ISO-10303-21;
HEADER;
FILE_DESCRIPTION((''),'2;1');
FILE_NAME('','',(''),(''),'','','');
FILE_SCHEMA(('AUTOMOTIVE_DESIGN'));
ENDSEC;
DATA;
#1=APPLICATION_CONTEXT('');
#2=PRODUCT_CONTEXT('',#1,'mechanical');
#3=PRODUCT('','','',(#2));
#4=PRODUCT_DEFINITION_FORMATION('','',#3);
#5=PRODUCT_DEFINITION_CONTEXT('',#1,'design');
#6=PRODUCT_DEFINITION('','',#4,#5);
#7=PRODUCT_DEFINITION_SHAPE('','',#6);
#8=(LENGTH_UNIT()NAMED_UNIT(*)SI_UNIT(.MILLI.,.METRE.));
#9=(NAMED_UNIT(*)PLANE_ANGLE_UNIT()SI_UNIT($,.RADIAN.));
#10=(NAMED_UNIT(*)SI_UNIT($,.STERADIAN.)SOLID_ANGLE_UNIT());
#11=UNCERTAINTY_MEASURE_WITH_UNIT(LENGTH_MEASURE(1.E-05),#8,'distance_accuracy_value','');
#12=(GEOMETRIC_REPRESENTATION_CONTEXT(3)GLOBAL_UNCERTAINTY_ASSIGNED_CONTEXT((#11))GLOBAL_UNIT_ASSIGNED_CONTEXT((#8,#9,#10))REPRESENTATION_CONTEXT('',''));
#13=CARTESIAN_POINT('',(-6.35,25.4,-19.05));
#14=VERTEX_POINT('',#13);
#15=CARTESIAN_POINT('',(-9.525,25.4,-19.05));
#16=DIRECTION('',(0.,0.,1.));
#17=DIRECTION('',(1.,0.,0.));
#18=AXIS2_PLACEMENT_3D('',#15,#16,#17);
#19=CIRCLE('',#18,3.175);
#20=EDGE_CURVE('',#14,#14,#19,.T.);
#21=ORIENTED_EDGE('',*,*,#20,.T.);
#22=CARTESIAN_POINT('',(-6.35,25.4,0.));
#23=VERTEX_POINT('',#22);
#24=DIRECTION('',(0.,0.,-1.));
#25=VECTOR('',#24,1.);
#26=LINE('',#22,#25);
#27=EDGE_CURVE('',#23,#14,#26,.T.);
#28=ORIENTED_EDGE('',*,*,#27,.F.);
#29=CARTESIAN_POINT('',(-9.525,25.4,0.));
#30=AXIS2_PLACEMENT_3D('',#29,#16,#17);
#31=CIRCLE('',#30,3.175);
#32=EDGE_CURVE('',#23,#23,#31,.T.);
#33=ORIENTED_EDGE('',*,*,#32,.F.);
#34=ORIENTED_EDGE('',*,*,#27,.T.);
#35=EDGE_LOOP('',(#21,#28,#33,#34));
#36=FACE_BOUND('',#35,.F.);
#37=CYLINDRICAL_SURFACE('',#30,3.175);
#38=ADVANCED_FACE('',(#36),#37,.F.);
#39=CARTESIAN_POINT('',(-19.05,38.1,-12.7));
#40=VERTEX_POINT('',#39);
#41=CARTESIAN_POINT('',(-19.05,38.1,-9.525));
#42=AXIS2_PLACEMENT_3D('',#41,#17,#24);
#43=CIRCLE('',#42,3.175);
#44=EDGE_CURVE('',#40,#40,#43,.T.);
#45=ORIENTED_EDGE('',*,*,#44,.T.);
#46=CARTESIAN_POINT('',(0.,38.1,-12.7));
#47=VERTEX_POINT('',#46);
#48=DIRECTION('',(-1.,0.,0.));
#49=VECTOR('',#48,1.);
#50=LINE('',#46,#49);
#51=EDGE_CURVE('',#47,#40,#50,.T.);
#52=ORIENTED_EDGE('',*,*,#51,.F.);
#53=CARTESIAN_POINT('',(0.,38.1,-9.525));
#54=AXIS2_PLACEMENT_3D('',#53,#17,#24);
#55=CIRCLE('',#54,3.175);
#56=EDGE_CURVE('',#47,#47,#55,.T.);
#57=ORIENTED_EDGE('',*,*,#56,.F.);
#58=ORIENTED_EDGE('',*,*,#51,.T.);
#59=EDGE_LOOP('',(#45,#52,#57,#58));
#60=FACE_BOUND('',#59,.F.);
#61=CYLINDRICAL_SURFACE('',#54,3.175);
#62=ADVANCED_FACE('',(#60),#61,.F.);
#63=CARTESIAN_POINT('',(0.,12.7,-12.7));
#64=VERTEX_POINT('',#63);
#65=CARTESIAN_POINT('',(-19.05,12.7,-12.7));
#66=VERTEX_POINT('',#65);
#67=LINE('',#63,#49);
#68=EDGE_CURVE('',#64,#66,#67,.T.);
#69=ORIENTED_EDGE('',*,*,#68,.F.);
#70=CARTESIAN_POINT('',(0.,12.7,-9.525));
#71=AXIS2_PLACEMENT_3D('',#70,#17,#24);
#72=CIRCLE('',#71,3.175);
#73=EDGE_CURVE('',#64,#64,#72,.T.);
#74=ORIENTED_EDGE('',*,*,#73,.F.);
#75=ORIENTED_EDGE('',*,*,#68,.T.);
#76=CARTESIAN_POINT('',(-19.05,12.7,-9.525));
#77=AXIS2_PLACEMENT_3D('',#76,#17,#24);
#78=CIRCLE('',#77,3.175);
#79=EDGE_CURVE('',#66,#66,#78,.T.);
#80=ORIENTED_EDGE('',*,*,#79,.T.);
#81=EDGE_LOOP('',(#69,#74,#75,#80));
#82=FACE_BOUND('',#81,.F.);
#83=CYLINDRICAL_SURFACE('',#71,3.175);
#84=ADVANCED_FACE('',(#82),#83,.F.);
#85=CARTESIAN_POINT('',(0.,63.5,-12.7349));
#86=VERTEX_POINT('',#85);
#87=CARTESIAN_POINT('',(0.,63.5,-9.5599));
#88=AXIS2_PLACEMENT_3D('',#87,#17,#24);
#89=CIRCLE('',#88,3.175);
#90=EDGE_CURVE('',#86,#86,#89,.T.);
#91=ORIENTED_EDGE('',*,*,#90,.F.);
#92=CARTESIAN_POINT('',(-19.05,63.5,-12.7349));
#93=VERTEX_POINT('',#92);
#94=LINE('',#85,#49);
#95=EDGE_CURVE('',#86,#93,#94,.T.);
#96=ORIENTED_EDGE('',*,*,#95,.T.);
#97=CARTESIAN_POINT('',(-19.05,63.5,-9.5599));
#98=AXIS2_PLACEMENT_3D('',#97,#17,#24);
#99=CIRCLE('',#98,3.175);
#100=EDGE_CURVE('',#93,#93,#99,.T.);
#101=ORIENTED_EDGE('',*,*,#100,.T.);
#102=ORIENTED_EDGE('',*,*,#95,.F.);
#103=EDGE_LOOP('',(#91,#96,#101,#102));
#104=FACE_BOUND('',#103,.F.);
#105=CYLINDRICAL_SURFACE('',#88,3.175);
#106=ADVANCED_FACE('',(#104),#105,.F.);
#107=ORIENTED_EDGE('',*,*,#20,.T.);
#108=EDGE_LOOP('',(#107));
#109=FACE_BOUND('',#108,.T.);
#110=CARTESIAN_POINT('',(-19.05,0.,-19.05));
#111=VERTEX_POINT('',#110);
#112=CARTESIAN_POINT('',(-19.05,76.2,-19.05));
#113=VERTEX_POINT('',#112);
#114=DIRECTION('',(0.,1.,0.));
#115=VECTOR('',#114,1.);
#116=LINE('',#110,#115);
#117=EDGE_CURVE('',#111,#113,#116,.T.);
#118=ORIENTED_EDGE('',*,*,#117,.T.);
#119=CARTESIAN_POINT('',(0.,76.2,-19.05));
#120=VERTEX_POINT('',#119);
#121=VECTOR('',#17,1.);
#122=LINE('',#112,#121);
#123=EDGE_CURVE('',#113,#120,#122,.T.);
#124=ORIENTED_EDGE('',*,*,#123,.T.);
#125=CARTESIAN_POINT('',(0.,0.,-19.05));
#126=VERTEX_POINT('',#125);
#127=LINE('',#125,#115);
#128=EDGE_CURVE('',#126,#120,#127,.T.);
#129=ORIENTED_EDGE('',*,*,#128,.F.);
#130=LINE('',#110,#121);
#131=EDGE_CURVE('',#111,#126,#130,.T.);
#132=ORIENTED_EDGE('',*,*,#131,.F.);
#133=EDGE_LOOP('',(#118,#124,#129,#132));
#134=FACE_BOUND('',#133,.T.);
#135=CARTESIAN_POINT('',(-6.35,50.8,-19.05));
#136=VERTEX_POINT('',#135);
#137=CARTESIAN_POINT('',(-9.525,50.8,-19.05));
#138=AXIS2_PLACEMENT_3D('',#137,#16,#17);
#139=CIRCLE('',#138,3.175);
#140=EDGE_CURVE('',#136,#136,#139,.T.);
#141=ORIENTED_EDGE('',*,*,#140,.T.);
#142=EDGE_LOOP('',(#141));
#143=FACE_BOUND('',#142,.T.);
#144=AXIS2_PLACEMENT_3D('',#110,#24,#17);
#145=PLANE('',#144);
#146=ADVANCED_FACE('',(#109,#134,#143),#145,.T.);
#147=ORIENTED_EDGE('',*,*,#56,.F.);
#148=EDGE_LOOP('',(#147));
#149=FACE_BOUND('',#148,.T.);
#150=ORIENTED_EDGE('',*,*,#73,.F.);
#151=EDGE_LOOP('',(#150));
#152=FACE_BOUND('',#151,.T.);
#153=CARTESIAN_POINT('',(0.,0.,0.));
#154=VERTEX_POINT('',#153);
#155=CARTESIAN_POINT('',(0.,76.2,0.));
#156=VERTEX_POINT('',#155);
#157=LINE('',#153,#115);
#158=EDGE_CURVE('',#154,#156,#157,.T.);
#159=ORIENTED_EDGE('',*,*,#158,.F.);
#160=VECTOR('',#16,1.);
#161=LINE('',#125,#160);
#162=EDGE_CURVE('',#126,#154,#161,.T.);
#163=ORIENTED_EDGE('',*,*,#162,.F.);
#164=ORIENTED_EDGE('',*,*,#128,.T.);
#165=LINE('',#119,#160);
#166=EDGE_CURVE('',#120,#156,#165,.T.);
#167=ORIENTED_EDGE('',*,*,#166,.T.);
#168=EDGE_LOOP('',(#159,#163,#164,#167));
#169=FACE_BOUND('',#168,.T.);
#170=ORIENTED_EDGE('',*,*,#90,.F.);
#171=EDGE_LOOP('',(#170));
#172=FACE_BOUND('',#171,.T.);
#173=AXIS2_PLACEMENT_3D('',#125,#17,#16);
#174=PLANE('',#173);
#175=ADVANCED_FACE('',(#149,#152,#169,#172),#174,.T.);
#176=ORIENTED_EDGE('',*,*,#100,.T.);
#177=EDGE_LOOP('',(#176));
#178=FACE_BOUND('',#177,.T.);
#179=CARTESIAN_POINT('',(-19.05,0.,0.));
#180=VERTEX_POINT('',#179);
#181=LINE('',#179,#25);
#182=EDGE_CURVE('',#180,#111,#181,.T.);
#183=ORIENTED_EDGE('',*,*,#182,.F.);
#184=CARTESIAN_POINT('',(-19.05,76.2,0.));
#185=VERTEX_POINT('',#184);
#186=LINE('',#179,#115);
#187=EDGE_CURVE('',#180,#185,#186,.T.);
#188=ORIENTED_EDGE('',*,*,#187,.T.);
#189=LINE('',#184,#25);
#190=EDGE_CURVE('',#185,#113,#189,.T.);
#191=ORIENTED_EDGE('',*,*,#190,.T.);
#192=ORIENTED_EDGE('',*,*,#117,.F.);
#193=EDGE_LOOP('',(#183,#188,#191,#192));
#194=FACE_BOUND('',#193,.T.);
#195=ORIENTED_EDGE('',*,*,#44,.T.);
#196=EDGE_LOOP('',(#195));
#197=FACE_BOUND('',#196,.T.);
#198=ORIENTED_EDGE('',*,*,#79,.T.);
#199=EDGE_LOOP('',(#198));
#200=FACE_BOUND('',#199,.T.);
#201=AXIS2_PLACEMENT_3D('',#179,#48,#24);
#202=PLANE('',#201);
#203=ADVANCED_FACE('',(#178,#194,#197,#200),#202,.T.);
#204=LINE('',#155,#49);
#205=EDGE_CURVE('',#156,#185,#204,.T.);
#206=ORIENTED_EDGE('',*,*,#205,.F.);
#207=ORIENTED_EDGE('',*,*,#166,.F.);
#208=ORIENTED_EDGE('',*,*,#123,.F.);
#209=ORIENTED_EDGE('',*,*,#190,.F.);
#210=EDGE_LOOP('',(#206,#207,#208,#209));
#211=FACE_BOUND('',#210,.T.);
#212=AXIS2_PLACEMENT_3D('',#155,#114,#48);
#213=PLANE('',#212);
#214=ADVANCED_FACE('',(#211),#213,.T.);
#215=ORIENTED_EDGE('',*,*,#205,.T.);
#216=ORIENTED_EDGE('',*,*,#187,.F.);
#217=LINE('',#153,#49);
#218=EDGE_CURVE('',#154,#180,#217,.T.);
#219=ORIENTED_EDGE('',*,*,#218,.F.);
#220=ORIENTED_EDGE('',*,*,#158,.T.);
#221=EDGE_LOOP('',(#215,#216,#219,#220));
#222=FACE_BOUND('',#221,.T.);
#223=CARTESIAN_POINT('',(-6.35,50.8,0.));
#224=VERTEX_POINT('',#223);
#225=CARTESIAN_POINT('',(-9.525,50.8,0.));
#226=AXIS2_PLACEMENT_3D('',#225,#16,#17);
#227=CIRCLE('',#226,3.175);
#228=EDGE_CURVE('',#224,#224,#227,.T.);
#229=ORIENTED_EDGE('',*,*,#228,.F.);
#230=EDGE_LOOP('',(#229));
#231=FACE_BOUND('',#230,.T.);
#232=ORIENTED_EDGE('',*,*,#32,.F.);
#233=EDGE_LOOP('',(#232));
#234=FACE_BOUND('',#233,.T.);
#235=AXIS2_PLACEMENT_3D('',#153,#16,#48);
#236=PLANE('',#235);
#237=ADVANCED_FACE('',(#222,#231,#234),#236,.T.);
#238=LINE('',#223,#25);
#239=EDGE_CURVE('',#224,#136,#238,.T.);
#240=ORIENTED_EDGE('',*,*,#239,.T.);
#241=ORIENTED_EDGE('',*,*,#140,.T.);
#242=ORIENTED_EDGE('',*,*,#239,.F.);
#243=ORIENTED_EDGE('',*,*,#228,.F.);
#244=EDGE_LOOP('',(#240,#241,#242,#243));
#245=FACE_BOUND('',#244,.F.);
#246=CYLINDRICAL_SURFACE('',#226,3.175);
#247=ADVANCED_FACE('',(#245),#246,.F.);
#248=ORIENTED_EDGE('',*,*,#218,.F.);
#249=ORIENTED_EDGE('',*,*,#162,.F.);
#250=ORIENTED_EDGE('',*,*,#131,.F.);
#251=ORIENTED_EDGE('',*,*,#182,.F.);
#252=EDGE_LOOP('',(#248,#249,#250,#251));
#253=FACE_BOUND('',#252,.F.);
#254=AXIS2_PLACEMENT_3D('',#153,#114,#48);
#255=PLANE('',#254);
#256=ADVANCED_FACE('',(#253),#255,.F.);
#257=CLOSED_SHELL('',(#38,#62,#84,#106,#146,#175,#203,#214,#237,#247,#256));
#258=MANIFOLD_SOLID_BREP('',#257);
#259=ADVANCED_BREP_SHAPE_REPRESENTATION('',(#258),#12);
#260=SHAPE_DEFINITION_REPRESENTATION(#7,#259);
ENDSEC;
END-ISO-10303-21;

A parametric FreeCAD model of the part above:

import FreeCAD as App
import Part
import Sketcher
Q = App.Units.Quantity


def add_polygon(sketch, points):
    """Adds a closed chain of lines whose ends are joined by coincident constraints."""
    first, n = sketch.GeometryCount, len(points)
    for a, b in zip(points, points[1:] + points[:1]):
        sketch.addGeometry(Part.LineSegment(App.Vector(*a, 0), App.Vector(*b, 0)), False)
    for i in range(n):
        sketch.addConstraint(Sketcher.Constraint("Coincident", first + i, 2, first + (i + 1) % n, 1))

doc = App.newDocument("Part")
body = doc.addObject("PartDesign::Body", "Body")

# Sketch on XZ plane
sketch1 = doc.addObject("Sketcher::SketchObject", "Sketch")
body.addObject(sketch1)
sketch1.AttachmentSupport = (doc.XZ_Plane, [""])
sketch1.MapMode = "FlatFace"
add_polygon(sketch1, [(-19, 0), (0, 0), (0, -19), (-19, -19)])  # lines 0-3
sketch1.addConstraint([
    Sketcher.Constraint("Horizontal", 0),
    Sketcher.Constraint("Vertical", 1),
    Sketcher.Constraint("Horizontal", 2),
    Sketcher.Constraint("Vertical", 3),
    Sketcher.Constraint("Coincident", 0, 2, -1, 1),
    Sketcher.Constraint("Equal", 2, 1),
    Sketcher.Constraint("DistanceX", 0, 1, 0, 2, Q("0.75 in")),
])
pad1 = doc.addObject("PartDesign::Pad", "Pad")
body.addObject(pad1)
pad1.Profile = sketch1
pad1.Length = Q("3 in")
pad1.Reversed = True

# Sketch on XY plane
sketch2 = doc.addObject("Sketcher::SketchObject", "Sketch001")
body.addObject(sketch2)
sketch2.AttachmentSupport = (doc.XY_Plane, [""])
sketch2.MapMode = "FlatFace"
sketch2.addGeometry([
    Part.Circle(App.Vector(-9.5, 50.8, 0), App.Vector(0, 0, 1), 3.2),
    Part.Circle(App.Vector(-9.5, 25.4, 0), App.Vector(0, 0, 1), 3.2),
], False)
sketch2.addConstraint([
    Sketcher.Constraint("Equal", 0, 1),
    Sketcher.Constraint("Vertical", 0, 3, 1, 3),
    Sketcher.Constraint("Diameter", 0, Q("0.25 in")),
    Sketcher.Constraint("DistanceY", -1, 1, 1, 3, Q("1 in")),
    Sketcher.Constraint("DistanceY", 1, 3, 0, 3, Q("1 in")),
    Sketcher.Constraint("DistanceX", 0, 3, -1, 1, Q("0.375 in")),
])
pocket1 = doc.addObject("PartDesign::Pocket", "Pocket")
body.addObject(pocket1)
pocket1.Profile = sketch2
pocket1.Length = Q("1 in")

# Sketch on YZ plane
sketch3 = doc.addObject("Sketcher::SketchObject", "Sketch002")
body.addObject(sketch3)
sketch3.AttachmentSupport = (doc.YZ_Plane, [""])
sketch3.MapMode = "FlatFace"
sketch3.addGeometry([
    Part.Circle(App.Vector(63.5, -9.6, 0), App.Vector(0, 0, 1), 3.2),
    Part.Circle(App.Vector(38.1, -9.5, 0), App.Vector(0, 0, 1), 3.2),
    Part.Circle(App.Vector(12.7, -9.5, 0), App.Vector(0, 0, 1), 3.2),
], False)
sketch3.addConstraint([
    Sketcher.Constraint("Equal", 0, 1),
    Sketcher.Constraint("Equal", 1, 2),
    Sketcher.Constraint("Horizontal", 1, 3, 2, 3),
    Sketcher.Constraint("Diameter", 0, Q("0.25 in")),
    Sketcher.Constraint("DistanceX", -1, 1, 1, 3, Q("1.5 in")),
    Sketcher.Constraint("DistanceX", -1, 1, 2, 3, Q("0.5 in")),
    Sketcher.Constraint("DistanceY", 1, 3, -1, 1, Q("0.375 in")),
    Sketcher.Constraint("DistanceX", 1, 3, 0, 3, Q("1 in")),
    Sketcher.Constraint("DistanceY", 0, 3, -1, 1, Q("9.56 mm")),
])
pocket2 = doc.addObject("PartDesign::Pocket", "Pocket001")
body.addObject(pocket2)
pocket2.Profile = sketch3
pocket2.Length = Q("1 in")

doc.recompute()
